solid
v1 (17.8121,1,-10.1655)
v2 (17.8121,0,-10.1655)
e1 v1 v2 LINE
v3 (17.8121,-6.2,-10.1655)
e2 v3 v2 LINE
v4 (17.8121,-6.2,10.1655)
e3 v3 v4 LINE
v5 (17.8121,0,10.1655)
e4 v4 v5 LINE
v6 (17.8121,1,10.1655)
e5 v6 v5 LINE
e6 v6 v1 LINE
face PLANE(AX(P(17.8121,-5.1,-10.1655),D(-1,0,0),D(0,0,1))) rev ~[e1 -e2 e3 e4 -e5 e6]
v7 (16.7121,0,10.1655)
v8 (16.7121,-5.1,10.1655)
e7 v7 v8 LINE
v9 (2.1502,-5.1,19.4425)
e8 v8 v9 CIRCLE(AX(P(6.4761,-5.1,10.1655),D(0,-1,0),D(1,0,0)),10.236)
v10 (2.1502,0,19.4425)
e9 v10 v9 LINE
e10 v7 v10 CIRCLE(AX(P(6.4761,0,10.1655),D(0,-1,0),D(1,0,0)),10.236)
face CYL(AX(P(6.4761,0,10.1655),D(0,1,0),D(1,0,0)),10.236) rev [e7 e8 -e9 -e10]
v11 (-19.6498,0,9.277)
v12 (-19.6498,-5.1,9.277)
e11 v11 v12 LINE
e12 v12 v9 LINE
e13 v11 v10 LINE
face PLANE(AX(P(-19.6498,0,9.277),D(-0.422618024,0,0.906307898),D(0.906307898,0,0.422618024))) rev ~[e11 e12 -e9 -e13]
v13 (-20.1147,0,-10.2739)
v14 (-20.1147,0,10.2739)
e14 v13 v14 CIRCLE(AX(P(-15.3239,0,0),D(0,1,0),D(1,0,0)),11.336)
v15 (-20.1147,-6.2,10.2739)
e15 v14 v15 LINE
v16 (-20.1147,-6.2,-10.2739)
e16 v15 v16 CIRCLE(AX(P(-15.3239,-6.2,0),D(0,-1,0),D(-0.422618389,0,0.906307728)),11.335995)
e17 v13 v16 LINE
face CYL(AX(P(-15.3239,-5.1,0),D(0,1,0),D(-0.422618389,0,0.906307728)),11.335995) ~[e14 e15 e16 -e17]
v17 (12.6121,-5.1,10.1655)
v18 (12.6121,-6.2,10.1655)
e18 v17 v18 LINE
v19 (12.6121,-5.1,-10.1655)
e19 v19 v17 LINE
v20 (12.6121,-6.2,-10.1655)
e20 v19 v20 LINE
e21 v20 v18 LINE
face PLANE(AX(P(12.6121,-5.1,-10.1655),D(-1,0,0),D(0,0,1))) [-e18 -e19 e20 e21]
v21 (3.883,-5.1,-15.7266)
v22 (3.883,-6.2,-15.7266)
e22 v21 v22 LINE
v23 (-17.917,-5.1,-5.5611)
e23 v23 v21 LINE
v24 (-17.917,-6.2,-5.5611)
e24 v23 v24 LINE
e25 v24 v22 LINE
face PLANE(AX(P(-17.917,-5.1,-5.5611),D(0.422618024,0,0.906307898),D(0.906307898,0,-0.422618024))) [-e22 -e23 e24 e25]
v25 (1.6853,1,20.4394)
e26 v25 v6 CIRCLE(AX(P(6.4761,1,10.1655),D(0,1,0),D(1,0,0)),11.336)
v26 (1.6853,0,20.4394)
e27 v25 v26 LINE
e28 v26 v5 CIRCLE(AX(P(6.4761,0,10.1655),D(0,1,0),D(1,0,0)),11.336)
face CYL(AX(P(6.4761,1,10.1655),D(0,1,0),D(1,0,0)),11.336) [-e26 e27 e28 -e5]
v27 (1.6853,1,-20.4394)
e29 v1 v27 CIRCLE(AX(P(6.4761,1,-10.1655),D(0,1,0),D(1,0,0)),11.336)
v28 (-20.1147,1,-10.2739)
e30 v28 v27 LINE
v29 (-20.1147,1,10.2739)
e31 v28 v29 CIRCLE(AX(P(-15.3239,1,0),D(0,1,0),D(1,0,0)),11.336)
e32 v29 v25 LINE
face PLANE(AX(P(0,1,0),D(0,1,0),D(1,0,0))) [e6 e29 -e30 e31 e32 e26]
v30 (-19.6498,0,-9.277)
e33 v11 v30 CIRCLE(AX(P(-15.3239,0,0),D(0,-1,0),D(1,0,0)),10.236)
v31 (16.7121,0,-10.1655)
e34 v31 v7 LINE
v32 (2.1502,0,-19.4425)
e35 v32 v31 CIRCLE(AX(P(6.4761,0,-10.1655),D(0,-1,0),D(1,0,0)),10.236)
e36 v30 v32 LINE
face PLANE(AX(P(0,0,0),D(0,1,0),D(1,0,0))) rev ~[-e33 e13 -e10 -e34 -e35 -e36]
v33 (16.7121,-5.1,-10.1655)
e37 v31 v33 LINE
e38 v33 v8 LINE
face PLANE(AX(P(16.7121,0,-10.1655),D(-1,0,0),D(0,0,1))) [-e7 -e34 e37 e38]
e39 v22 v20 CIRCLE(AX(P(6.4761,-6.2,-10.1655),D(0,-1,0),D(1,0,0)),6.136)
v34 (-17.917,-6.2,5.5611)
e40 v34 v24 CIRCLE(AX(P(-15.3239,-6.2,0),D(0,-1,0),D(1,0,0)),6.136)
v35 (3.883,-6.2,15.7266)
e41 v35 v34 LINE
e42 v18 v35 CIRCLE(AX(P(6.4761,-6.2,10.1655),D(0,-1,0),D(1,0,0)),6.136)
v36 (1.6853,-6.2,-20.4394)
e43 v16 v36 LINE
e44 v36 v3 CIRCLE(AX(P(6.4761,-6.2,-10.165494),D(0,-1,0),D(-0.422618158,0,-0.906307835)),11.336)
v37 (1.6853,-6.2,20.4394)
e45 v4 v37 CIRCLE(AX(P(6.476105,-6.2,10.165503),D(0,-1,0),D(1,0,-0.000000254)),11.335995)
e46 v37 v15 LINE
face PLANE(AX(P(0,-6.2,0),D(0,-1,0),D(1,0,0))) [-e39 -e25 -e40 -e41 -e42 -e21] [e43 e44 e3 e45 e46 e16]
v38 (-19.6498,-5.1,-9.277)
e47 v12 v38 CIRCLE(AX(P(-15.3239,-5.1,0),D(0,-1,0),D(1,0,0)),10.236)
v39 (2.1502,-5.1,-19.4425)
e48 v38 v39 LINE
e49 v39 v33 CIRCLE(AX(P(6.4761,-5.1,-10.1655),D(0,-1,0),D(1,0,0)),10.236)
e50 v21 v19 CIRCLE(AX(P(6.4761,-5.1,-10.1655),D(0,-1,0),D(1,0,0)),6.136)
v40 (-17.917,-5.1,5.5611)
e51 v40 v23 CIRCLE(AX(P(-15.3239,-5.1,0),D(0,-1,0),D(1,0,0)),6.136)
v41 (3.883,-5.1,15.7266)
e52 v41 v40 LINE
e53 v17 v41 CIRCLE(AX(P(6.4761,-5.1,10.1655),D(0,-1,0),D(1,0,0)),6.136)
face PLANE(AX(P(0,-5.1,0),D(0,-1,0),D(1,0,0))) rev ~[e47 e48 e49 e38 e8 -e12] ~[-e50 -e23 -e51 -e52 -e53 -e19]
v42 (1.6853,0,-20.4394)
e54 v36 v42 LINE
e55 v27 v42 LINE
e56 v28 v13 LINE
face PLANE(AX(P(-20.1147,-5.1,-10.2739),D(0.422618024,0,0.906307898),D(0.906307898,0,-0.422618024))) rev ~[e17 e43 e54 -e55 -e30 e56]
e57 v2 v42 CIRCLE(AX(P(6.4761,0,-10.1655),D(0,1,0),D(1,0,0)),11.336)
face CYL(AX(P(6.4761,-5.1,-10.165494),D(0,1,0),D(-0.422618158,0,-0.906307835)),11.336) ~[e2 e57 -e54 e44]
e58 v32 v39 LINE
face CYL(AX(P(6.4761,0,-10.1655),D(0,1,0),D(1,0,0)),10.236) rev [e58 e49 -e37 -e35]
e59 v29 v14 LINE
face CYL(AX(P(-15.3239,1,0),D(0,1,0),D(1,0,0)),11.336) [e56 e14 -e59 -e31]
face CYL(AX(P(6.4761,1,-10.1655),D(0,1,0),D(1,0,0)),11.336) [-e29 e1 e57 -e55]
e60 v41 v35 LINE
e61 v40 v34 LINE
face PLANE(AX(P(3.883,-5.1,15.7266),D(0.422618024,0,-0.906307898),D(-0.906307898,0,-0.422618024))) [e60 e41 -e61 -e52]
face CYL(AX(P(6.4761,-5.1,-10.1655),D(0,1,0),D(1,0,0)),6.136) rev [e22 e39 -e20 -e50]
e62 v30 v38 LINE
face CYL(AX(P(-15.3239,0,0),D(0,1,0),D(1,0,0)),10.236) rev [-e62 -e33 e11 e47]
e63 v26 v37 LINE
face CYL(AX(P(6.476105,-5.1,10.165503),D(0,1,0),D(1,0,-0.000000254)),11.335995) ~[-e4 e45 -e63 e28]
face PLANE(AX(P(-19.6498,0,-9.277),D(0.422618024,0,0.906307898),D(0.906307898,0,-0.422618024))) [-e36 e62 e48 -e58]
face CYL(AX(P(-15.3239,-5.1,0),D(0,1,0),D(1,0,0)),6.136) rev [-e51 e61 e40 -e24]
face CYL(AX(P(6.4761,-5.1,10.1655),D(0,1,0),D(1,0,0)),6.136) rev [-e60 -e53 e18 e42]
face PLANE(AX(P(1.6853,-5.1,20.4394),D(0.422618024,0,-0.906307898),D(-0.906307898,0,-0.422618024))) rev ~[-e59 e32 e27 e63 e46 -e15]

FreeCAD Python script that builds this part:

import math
import FreeCAD as App
import Part
import Sketcher
Q = App.Units.Quantity

doc = App.newDocument("Part")
body = doc.addObject("PartDesign::Body", "Body")

# Sketch on XZ plane
sketch1 = doc.addObject("Sketcher::SketchObject", "Sketch")
body.addObject(sketch1)
sketch1.AttachmentSupport = (doc.XZ_Plane, [""])
sketch1.MapMode = "FlatFace"
sketch1.addGeometry([
    Part.LineSegment(App.Vector(-20, 10, 0), App.Vector(2, 20, 0)),  # 0
    Part.ArcOfCircle(Part.Circle(App.Vector(6, 10, 0), App.Vector(0, 0, 1), 11), math.radians(0), math.radians(115)),  # 1
    Part.LineSegment(App.Vector(17, 10, 0), App.Vector(17, -10, 0)),  # 2
    Part.ArcOfCircle(Part.Circle(App.Vector(6, -10, 0), App.Vector(0, 0, 1), 11), math.radians(-115), math.radians(0)),  # 3
    Part.LineSegment(App.Vector(2, -20, 0), App.Vector(-20, -10, 0)),  # 4
    Part.ArcOfCircle(Part.Circle(App.Vector(-15, 0, 0), App.Vector(0, 0, 1), 11), math.radians(115), math.radians(245)),  # 5
], False)
sketch1.addConstraint([
    Sketcher.Constraint("Tangent", 0, 2, 1, 2),
    Sketcher.Constraint("Tangent", 1, 1, 2, 1),
    Sketcher.Constraint("Tangent", 2, 2, 3, 2),
    Sketcher.Constraint("Tangent", 3, 1, 4, 1),
    Sketcher.Constraint("Tangent", 4, 2, 5, 2),
    Sketcher.Constraint("Tangent", 5, 1, 0, 1),
    Sketcher.Constraint("Vertical", 2),
    Sketcher.Constraint("Equal", 1, 3),
    Sketcher.Constraint("Equal", 3, 5),
    Sketcher.Constraint("Symmetric", 0, 2, 3, 1, -1),
    Sketcher.Constraint("Radius", 1, Q("10.9 mm")),
    Sketcher.Constraint("DistanceX", 5, 3, 1, 3, Q("21.8 mm")),
    Sketcher.Constraint("Angle", 0, Q("25 deg")),
    Sketcher.Constraint("DistanceX", -1, 1, 1, 3, Q("6.476 mm")),
])
pad1 = doc.addObject("PartDesign::Pad", "Pad")
body.addObject(pad1)
pad1.Profile = sketch1
pad1.Length = 1
pad1.Reversed = True

# Sketch on XZ plane
sketch2 = doc.addObject("Sketcher::SketchObject", "Sketch001")
body.addObject(sketch2)
sketch2.AttachmentSupport = (doc.XZ_Plane, [""])
sketch2.MapMode = "FlatFace"
sketch2.AttachmentOffset = App.Placement(App.Vector(0, 0, -1), App.Rotation())
sketch2.addGeometry([
    Part.ArcOfCircle(Part.Circle(App.Vector(6, 10, 0), App.Vector(0, 0, 1), 11), math.radians(0), math.radians(115)),  # 0
    Part.LineSegment(App.Vector(18, 10, 0), App.Vector(18, -10, 0)),  # 1
    Part.ArcOfCircle(Part.Circle(App.Vector(6, -10, 0), App.Vector(0, 0, 1), 11), math.radians(-115), math.radians(0)),  # 2
    Part.LineSegment(App.Vector(2, -20, 0), App.Vector(-20, -10, 0)),  # 3
    Part.ArcOfCircle(Part.Circle(App.Vector(-15, 0, 0), App.Vector(0, 0, 1), 11), math.radians(115), math.radians(245)),  # 4
    Part.LineSegment(App.Vector(-20, 10, 0), App.Vector(2, 20, 0)),  # 5
], False)
sketch2.addConstraint([
    Sketcher.Constraint("Tangent", 0, 1, 1, 1),
    Sketcher.Constraint("Tangent", 1, 2, 2, 2),
    Sketcher.Constraint("Tangent", 2, 1, 3, 1),
    Sketcher.Constraint("Tangent", 3, 2, 4, 2),
    Sketcher.Constraint("Tangent", 4, 1, 5, 1),
    Sketcher.Constraint("Tangent", 5, 2, 0, 2),
    Sketcher.Constraint("Vertical", 1),
    Sketcher.Constraint("Equal", 0, 2),
    Sketcher.Constraint("Equal", 2, 4),
    Sketcher.Constraint("Symmetric", 3, 2, 4, 1, -1),
    Sketcher.Constraint("Radius", 0, Q("11.336 mm")),
    Sketcher.Constraint("Angle", 3, Q("155 deg")),
    Sketcher.Constraint("DistanceX", 4, 3, 0, 3, Q("21.8 mm")),
    Sketcher.Constraint("DistanceX", -1, 1, 0, 3, Q("6.476 mm")),
])
pad2 = doc.addObject("PartDesign::Pad", "Pad001")
body.addObject(pad2)
pad2.Profile = sketch2
pad2.Length = 1

# Sketch on XZ plane
sketch3 = doc.addObject("Sketcher::SketchObject", "Sketch002")
body.addObject(sketch3)
sketch3.AttachmentSupport = (doc.XZ_Plane, [""])
sketch3.MapMode = "FlatFace"
sketch3.addGeometry([
    Part.LineSegment(App.Vector(-20, -10, 0), App.Vector(2, -20, 0)),  # 0
    Part.ArcOfCircle(Part.Circle(App.Vector(6, -10, 0), App.Vector(0, 0, 1), 11), math.radians(-115), math.radians(0)),  # 1
    Part.LineSegment(App.Vector(18, -10, 0), App.Vector(18, 10, 0)),  # 2
    Part.ArcOfCircle(Part.Circle(App.Vector(6, 10, 0), App.Vector(0, 0, 1), 11), math.radians(0), math.radians(115)),  # 3
    Part.LineSegment(App.Vector(2, 20, 0), App.Vector(-20, 10, 0)),  # 4
    Part.ArcOfCircle(Part.Circle(App.Vector(-15, 0, 0), App.Vector(0, 0, 1), 11), math.radians(115), math.radians(245)),  # 5
    Part.ArcOfCircle(Part.Circle(App.Vector(-15, 0, 0), App.Vector(0, 0, 1), 10), math.radians(115), math.radians(245)),  # 6
    Part.LineSegment(App.Vector(-20, 9, 0), App.Vector(2, 19, 0)),  # 7
    Part.ArcOfCircle(Part.Circle(App.Vector(6, 10, 0), App.Vector(0, 0, 1), 10), math.radians(0), math.radians(115)),  # 8
    Part.LineSegment(App.Vector(17, 10, 0), App.Vector(17, -10, 0)),  # 9
    Part.ArcOfCircle(Part.Circle(App.Vector(6, -10, 0), App.Vector(0, 0, 1), 10), math.radians(-115), math.radians(0)),  # 10
    Part.LineSegment(App.Vector(2, -19, 0), App.Vector(-20, -9, 0)),  # 11
], False)
sketch3.addConstraint([
    Sketcher.Constraint("Tangent", 0, 2, 1, 1),
    Sketcher.Constraint("Tangent", 1, 2, 2, 1),
    Sketcher.Constraint("Tangent", 2, 2, 3, 1),
    Sketcher.Constraint("Tangent", 3, 2, 4, 1),
    Sketcher.Constraint("Tangent", 4, 2, 5, 1),
    Sketcher.Constraint("Tangent", 5, 2, 0, 1),
    Sketcher.Constraint("Tangent", 6, 1, 7, 1),
    Sketcher.Constraint("Tangent", 7, 2, 8, 2),
    Sketcher.Constraint("Tangent", 8, 1, 9, 1),
    Sketcher.Constraint("Tangent", 9, 2, 10, 2),
    Sketcher.Constraint("Tangent", 10, 1, 11, 1),
    Sketcher.Constraint("Tangent", 11, 2, 6, 2),
    Sketcher.Constraint("Vertical", 2),
    Sketcher.Constraint("Vertical", 9),
    Sketcher.Constraint("Coincident", 6, 3, 5, 3),
    Sketcher.Constraint("Coincident", 8, 3, 3, 3),
    Sketcher.Constraint("Coincident", 10, 3, 1, 3),
    Sketcher.Constraint("Equal", 1, 3),
    Sketcher.Constraint("Equal", 3, 5),
    Sketcher.Constraint("Equal", 6, 8),
    Sketcher.Constraint("Symmetric", 0, 2, 3, 2, -1),
    Sketcher.Constraint("DistanceX", 8, 1, 2, 2, Q("1.1 mm")),
    Sketcher.Constraint("Angle", 0, Q("-25 deg")),
    Sketcher.Constraint("Radius", 1, Q("11.336 mm")),
    Sketcher.Constraint("DistanceX", 5, 3, 1, 3, Q("21.8 mm")),
    Sketcher.Constraint("DistanceX", -1, 1, 1, 3, Q("6.476 mm")),
])
pad3 = doc.addObject("PartDesign::Pad", "Pad002")
body.addObject(pad3)
pad3.Profile = sketch3
pad3.Length = 5.1

# Sketch on XZ plane
sketch4 = doc.addObject("Sketcher::SketchObject", "Sketch003")
body.addObject(sketch4)
sketch4.AttachmentSupport = (doc.XZ_Plane, [""])
sketch4.MapMode = "FlatFace"
sketch4.AttachmentOffset = App.Placement(App.Vector(0, 0, 5.1), App.Rotation())
sketch4.addGeometry([
    Part.ArcOfCircle(Part.Circle(App.Vector(6, 10, 0), App.Vector(0, 0, 1), 11), math.radians(0), math.radians(115)),  # 0
    Part.LineSegment(App.Vector(2, 20, 0), App.Vector(-20, 10, 0)),  # 1
    Part.ArcOfCircle(Part.Circle(App.Vector(-15, 0, 0), App.Vector(0, 0, 1), 11), math.radians(115), math.radians(245)),  # 2
    Part.LineSegment(App.Vector(-20, -10, 0), App.Vector(2, -20, 0)),  # 3
    Part.ArcOfCircle(Part.Circle(App.Vector(6, -10, 0), App.Vector(0, 0, 1), 11), math.radians(-115), math.radians(0)),  # 4
    Part.LineSegment(App.Vector(18, -10, 0), App.Vector(18, 10, 0)),  # 5
    Part.LineSegment(App.Vector(13, 10, 0), App.Vector(13, -10, 0)),  # 6
    Part.ArcOfCircle(Part.Circle(App.Vector(6, -10, 0), App.Vector(0, 0, 1), 6), math.radians(-115), math.radians(0)),  # 7
    Part.LineSegment(App.Vector(4, -16, 0), App.Vector(-18, -6, 0)),  # 8
    Part.ArcOfCircle(Part.Circle(App.Vector(-15, 0, 0), App.Vector(0, 0, 1), 6), math.radians(115), math.radians(245)),  # 9
    Part.LineSegment(App.Vector(-18, 6, 0), App.Vector(4, 16, 0)),  # 10
    Part.ArcOfCircle(Part.Circle(App.Vector(6, 10, 0), App.Vector(0, 0, 1), 6), math.radians(0), math.radians(115)),  # 11
], False)
sketch4.addConstraint([
    Sketcher.Constraint("Tangent", 0, 2, 1, 1),
    Sketcher.Constraint("Tangent", 1, 2, 2, 1),
    Sketcher.Constraint("Tangent", 2, 2, 3, 1),
    Sketcher.Constraint("Tangent", 3, 2, 4, 1),
    Sketcher.Constraint("Tangent", 4, 2, 5, 1),
    Sketcher.Constraint("Tangent", 5, 2, 0, 1),
    Sketcher.Constraint("Tangent", 6, 2, 7, 2),
    Sketcher.Constraint("Tangent", 7, 1, 8, 1),
    Sketcher.Constraint("Tangent", 8, 2, 9, 2),
    Sketcher.Constraint("Tangent", 9, 1, 10, 1),
    Sketcher.Constraint("Tangent", 10, 2, 11, 2),
    Sketcher.Constraint("Tangent", 11, 1, 6, 1),
    Sketcher.Constraint("Vertical", 5),
    Sketcher.Constraint("Vertical", 6),
    Sketcher.Constraint("Coincident", 7, 3, 4, 3),
    Sketcher.Constraint("Coincident", 9, 3, 2, 3),
    Sketcher.Constraint("Coincident", 11, 3, 0, 3),
    Sketcher.Constraint("Equal", 0, 2),
    Sketcher.Constraint("Equal", 2, 4),
    Sketcher.Constraint("Equal", 7, 9),
    Sketcher.Constraint("Symmetric", 1, 2, 2, 2, -1),
    Sketcher.Constraint("DistanceX", 6, 2, 4, 2, Q("5.2 mm")),
    Sketcher.Constraint("Angle", 1, Q("-155 deg")),
    Sketcher.Constraint("Radius", 0, Q("11.336 mm")),
    Sketcher.Constraint("DistanceX", 2, 3, 0, 3, Q("21.8 mm")),
    Sketcher.Constraint("DistanceX", -1, 1, 0, 3, Q("6.476 mm")),
])
pad4 = doc.addObject("PartDesign::Pad", "Pad003")
body.addObject(pad4)
pad4.Profile = sketch4
pad4.Length = 1.1

doc.recompute()
